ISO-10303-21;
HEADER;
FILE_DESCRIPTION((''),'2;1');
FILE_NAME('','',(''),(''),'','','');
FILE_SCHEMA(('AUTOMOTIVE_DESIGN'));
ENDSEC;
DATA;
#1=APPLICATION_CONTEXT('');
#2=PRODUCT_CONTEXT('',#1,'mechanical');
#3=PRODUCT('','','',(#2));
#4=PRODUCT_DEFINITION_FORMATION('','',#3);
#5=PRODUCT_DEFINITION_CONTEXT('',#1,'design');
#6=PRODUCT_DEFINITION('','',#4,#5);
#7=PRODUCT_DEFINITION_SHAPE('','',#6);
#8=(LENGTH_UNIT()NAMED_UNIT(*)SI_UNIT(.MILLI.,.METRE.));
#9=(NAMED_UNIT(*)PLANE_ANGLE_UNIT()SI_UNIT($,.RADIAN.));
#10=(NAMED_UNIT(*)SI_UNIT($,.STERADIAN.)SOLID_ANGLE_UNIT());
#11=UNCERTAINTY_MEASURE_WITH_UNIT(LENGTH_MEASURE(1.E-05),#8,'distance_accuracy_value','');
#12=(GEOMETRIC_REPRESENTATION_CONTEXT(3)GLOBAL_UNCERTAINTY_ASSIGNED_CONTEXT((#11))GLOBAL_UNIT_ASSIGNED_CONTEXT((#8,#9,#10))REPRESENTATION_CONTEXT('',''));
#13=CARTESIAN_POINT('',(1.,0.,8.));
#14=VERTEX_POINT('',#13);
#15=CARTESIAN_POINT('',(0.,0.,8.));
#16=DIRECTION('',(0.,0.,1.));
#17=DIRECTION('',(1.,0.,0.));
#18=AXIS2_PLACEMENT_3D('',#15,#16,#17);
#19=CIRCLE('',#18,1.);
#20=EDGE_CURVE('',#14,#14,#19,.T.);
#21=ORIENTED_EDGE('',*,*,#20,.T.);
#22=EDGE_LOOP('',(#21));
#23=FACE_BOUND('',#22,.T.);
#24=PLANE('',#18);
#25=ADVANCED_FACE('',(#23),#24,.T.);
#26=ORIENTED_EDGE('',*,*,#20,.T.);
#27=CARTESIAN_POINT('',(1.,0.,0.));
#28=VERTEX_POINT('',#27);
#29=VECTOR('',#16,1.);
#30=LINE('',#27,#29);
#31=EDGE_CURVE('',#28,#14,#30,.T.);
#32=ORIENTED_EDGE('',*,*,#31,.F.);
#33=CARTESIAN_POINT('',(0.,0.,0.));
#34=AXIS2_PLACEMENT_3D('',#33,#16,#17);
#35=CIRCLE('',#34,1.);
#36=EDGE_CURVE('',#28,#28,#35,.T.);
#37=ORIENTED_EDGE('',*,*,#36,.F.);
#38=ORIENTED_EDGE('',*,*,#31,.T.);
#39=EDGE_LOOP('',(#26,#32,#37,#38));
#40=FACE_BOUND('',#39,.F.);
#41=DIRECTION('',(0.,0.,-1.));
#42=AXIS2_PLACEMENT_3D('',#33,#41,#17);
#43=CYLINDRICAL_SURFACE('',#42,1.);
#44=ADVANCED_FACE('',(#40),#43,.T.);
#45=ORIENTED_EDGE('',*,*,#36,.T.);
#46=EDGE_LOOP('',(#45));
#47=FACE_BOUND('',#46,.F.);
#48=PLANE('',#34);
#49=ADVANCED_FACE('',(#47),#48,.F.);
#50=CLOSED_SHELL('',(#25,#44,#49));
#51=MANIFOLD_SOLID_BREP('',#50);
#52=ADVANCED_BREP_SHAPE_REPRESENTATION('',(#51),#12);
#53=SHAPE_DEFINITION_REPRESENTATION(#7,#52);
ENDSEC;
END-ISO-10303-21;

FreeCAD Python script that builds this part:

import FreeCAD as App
import Part
import Sketcher

doc = App.newDocument("Part")
body = doc.addObject("PartDesign::Body", "Body")

sketch1 = body.newObject("Sketcher::SketchObject", "Sketch")
sketch1.AttachmentSupport = (doc.getObject("XY_Plane"), [""])
sketch1.MapMode = "FlatFace"
sketch1.addGeometry(Part.Circle(App.Vector(0, 0, 0), App.Vector(0, 0, 1), 1), False)
sketch1.addConstraint(Sketcher.Constraint("Coincident", 0, 3, -1, 1))
sketch1.addConstraint(Sketcher.Constraint("Diameter", 0, 2.0))
pad1 = body.newObject("PartDesign::Pad", "Pad")
pad1.Profile = sketch1
pad1.Length = 8

doc.recompute()
